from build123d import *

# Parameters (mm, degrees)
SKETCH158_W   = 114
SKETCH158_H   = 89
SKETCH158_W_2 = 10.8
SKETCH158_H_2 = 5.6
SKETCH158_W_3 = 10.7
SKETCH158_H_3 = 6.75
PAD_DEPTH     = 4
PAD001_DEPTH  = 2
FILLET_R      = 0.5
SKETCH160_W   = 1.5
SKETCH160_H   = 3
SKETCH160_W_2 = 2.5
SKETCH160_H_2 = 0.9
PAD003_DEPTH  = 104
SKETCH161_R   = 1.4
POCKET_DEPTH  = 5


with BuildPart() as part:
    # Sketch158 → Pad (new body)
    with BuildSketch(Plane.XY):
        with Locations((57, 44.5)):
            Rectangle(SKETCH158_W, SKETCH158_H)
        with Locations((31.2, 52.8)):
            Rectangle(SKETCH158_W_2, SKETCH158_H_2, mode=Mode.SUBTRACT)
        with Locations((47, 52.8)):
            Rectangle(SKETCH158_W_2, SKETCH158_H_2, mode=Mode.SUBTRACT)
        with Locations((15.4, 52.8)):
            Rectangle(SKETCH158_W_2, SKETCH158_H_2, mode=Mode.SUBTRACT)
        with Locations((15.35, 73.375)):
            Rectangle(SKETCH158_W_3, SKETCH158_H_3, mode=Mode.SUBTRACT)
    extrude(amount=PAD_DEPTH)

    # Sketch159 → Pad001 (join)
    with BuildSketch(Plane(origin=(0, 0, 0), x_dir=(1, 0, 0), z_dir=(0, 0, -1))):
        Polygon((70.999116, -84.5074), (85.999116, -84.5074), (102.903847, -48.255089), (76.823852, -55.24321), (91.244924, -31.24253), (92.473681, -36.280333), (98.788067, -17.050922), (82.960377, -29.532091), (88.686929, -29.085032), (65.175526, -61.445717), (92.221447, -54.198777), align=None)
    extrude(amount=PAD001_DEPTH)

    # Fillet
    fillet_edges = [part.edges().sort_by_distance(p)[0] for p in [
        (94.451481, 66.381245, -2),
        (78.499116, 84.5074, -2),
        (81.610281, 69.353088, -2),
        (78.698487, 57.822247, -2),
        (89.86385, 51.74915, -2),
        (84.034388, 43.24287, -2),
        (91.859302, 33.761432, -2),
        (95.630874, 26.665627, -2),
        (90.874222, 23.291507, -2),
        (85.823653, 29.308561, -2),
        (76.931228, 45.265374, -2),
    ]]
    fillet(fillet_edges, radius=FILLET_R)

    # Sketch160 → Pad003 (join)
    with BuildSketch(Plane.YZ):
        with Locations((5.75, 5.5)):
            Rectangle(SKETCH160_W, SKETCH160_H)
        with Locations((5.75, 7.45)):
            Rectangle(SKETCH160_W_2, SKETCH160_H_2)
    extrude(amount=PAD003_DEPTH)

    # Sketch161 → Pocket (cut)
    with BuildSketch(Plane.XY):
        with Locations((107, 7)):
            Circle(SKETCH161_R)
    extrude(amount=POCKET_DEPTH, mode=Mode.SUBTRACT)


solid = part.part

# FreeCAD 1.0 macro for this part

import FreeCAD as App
import Part
import Sketcher
Q = App.Units.Quantity


def edges_at(feature, points):
    """Names of the edges that pass closest to the given points."""
    edges = feature.Shape.Edges
    near = lambda p: min(range(len(edges)), key=lambda i: edges[i].distToShape(Part.Vertex(*p))[0])
    return sorted({f"Edge{near(p) + 1}" for p in points})


def add_polygon(sketch, points):
    """Adds a closed chain of lines whose ends are joined by coincident constraints."""
    first, n = sketch.GeometryCount, len(points)
    for a, b in zip(points, points[1:] + points[:1]):
        sketch.addGeometry(Part.LineSegment(App.Vector(*a, 0), App.Vector(*b, 0)), False)
    for i in range(n):
        sketch.addConstraint(Sketcher.Constraint("Coincident", first + i, 2, first + (i + 1) % n, 1))

doc = App.newDocument("Part")
body = doc.addObject("PartDesign::Body", "Body")

# Sketch on XY plane
sketch1 = body.newObject("Sketcher::SketchObject", "Sketch")
sketch1.AttachmentSupport = (doc.getObject("XY_Plane"), [""])
sketch1.MapMode = "FlatFace"
add_polygon(sketch1, [(0, 89), (0, 0), (114, 0), (114, 89)])  # lines 0-3
add_polygon(sketch1, [(20.8, 50), (10, 50), (10, 55.6), (20.8, 55.6)])  # lines 4-7
add_polygon(sketch1, [(36.6, 50), (25.8, 50), (25.8, 55.6), (36.6, 55.6)])  # lines 8-11
add_polygon(sketch1, [(52.4, 50), (41.6, 50), (41.6, 55.6), (52.4, 55.6)])  # lines 12-15
add_polygon(sketch1, [(20.7, 70), (10, 70), (10, 76.75), (20.7, 76.75)])  # lines 16-19
sketch1.addConstraint([
    Sketcher.Constraint("Vertical", 0),
    Sketcher.Constraint("Horizontal", 1),
    Sketcher.Constraint("Vertical", 2),
    Sketcher.Constraint("Horizontal", 3),
    Sketcher.Constraint("Horizontal", 4),
    Sketcher.Constraint("Vertical", 5),
    Sketcher.Constraint("Horizontal", 6),
    Sketcher.Constraint("Vertical", 7),
    Sketcher.Constraint("Horizontal", 8),
    Sketcher.Constraint("Vertical", 9),
    Sketcher.Constraint("Horizontal", 10),
    Sketcher.Constraint("Vertical", 11),
    Sketcher.Constraint("Horizontal", 12),
    Sketcher.Constraint("Vertical", 13),
    Sketcher.Constraint("Horizontal", 14),
    Sketcher.Constraint("Vertical", 15),
    Sketcher.Constraint("Horizontal", 16),
    Sketcher.Constraint("Vertical", 17),
    Sketcher.Constraint("Horizontal", 18),
    Sketcher.Constraint("Vertical", 19),
    Sketcher.Constraint("Coincident", 0, 2, -1, 1),
    Sketcher.Constraint("Horizontal", 7, 2, 8, 2),
    Sketcher.Constraint("Horizontal", 6, 2, 9, 2),
    Sketcher.Constraint("Horizontal", 11, 2, 12, 2),
    Sketcher.Constraint("Horizontal", 10, 2, 13, 2),
    Sketcher.Constraint("Vertical", 5, 2, 16, 2),
    Sketcher.Constraint("Equal", 6, 8),
    Sketcher.Constraint("Equal", 10, 12),
    Sketcher.Constraint("DistanceX", 1, 1, 1, 2, Q("114 mm")),
    Sketcher.Constraint("DistanceY", 0, 2, 0, 1, Q("89 mm")),
    Sketcher.Constraint("DistanceX", 4, 2, 4, 1, Q("10.8 mm")),
    Sketcher.Constraint("DistanceX", 16, 2, 16, 1, Q("10.7 mm")),
    Sketcher.Constraint("DistanceY", 5, 1, 5, 2, Q("5.6 mm")),
    Sketcher.Constraint("DistanceX", -1, 1, 4, 2, Q("10 mm")),
    Sketcher.Constraint("DistanceY", -1, 1, 4, 2, Q("50 mm")),
    Sketcher.Constraint("DistanceY", -1, 1, 16, 2, Q("70 mm")),
    Sketcher.Constraint("DistanceX", 7, 2, 8, 2, Q("5 mm")),
    Sketcher.Constraint("DistanceX", 11, 2, 12, 2, Q("5 mm")),
    Sketcher.Constraint("DistanceY", 17, 1, 17, 2, Q("6.75 mm")),
])
pad1 = body.newObject("PartDesign::Pad", "Pad")
pad1.Profile = sketch1
pad1.Length = 4

# Sketch on XY plane
sketch2 = body.newObject("Sketcher::SketchObject", "Sketch001")
sketch2.AttachmentSupport = (doc.getObject("XY_Plane"), [""])
sketch2.MapMode = "FlatFace"
add_polygon(sketch2, [(70.999116, 84.5074), (85.999116, 84.5074), (102.903847, 48.255089), (76.823852, 55.24321), (91.244924, 31.24253), (92.473681, 36.280333), (98.788067, 17.050922), (82.960377, 29.532091), (88.686929, 29.085032), (65.175526, 61.445717), (92.221447, 54.198777)])  # lines 0-10
sketch2.addConstraint([
    Sketcher.Constraint("Horizontal", 0),
    Sketcher.Constraint("Parallel", 2, 9),
    Sketcher.Constraint("Equal", 1, 8),
    Sketcher.Constraint("Equal", 3, 9),
    Sketcher.Constraint("DistanceX", 0, 1, 0, 2, Q("15 mm")),
    Sketcher.Constraint("Angle", 1, Q("-64.999999 deg")),
    Sketcher.Constraint("Angle", 2, Q("164.999985 deg")),
    Sketcher.Constraint("Angle", 3, Q("-58.999985 deg")),
    Sketcher.Constraint("Angle", 8, Q("125.999987 deg")),
    Sketcher.Constraint("Angle", 10, Q("125.000006 deg")),
    Sketcher.Constraint("Distance", 1, Q("40 mm")),
    Sketcher.Constraint("Distance", 2, Q("27 mm")),
    Sketcher.Constraint("Distance", 3, Q("27.999999 mm")),
    Sketcher.Constraint("Distance", 10, Q("36.999999 mm")),
    Sketcher.Constraint("DistanceY", -1, 1, 0, 2, Q("84.5074 mm")),
    Sketcher.Constraint("DistanceY", 7, 2, 4, 2, Q("7.195301 mm")),
    Sketcher.Constraint("Distance", 4, Q("5.18549 mm")),
    Sketcher.Constraint("Distance", 6, Q("20.156769 mm")),
    Sketcher.Constraint("DistanceX", -1, 1, 4, 2, Q("92.473681 mm")),
    Sketcher.Constraint("DistanceY", -1, 1, 5, 2, Q("17.050922 mm")),
    Sketcher.Constraint("DistanceY", -1, 1, 6, 2, Q("29.532091 mm")),
    Sketcher.Constraint("DistanceX", 5, 2, 1, 2, Q("4.11578 mm")),
])
pad2 = body.newObject("PartDesign::Pad", "Pad001")
pad2.Profile = sketch2
pad2.Length = 2
pad2.Reversed = True
doc.recompute()

fillet = body.newObject("PartDesign::Fillet", "Fillet")
fillet.Base = (pad2, edges_at(pad2, [
    (94.451, 66.381, -2),
    (78.499, 84.507, -2),
    (81.61, 69.353, -2),
    (78.698, 57.822, -2),
    (89.864, 51.749, -2),
    (84.034, 43.243, -2),
    (91.859, 33.761, -2),
    (95.631, 26.666, -2),
    (90.874, 23.292, -2),
    (85.824, 29.309, -2),
    (76.931, 45.265, -2),
]))
fillet.Radius = 0.5

# Sketch on YZ plane
sketch3 = body.newObject("Sketcher::SketchObject", "Sketch002")
sketch3.AttachmentSupport = (doc.getObject("YZ_Plane"), [""])
sketch3.MapMode = "FlatFace"
add_polygon(sketch3, [(5, 7), (5, 4), (6.5, 4), (6.5, 7), (7, 7), (7, 7.9), (4.5, 7.9), (4.5, 7)])  # lines 0-7
sketch3.addConstraint([
    Sketcher.Constraint("Vertical", 0),
    Sketcher.Constraint("Horizontal", 1),
    Sketcher.Constraint("Vertical", 2),
    Sketcher.Constraint("Horizontal", 3),
    Sketcher.Constraint("Vertical", 4),
    Sketcher.Constraint("Horizontal", 5),
    Sketcher.Constraint("Vertical", 6),
    Sketcher.Constraint("Horizontal", 7),
    Sketcher.Constraint("Horizontal", 3, 2, 6, 2),
    Sketcher.Constraint("Equal", 3, 7),
    Sketcher.Constraint("DistanceY", 0, 2, 0, 1, Q("3 mm")),
    Sketcher.Constraint("DistanceX", 1, 1, 1, 2, Q("1.5 mm")),
    Sketcher.Constraint("DistanceX", 3, 1, 3, 2, Q("0.5 mm")),
    Sketcher.Constraint("DistanceY", 4, 1, 4, 2, Q("0.9 mm")),
    Sketcher.Constraint("DistanceX", -1, 1, 0, 2, Q("5 mm")),
    Sketcher.Constraint("DistanceY", -1, 1, 0, 2, Q("4 mm")),
])
pad3 = body.newObject("PartDesign::Pad", "Pad002")
pad3.Profile = sketch3
pad3.Length = 104

# Sketch on XY plane
sketch4 = body.newObject("Sketcher::SketchObject", "Sketch003")
sketch4.AttachmentSupport = (doc.getObject("XY_Plane"), [""])
sketch4.MapMode = "FlatFace"
sketch4.addGeometry(Part.Circle(App.Vector(107, 7, 0), App.Vector(0, 0, 1), 1.4), False)
sketch4.addConstraint([
    Sketcher.Constraint("Diameter", 0, Q("2.8 mm")),
    Sketcher.Constraint("DistanceX", -1, 1, 0, 3, Q("107 mm")),
    Sketcher.Constraint("DistanceY", -1, 1, 0, 3, Q("7 mm")),
])
pocket1 = body.newObject("PartDesign::Pocket", "Pocket")
pocket1.Profile = sketch4
pocket1.Length = 5
pocket1.Reversed = True

doc.recompute()
